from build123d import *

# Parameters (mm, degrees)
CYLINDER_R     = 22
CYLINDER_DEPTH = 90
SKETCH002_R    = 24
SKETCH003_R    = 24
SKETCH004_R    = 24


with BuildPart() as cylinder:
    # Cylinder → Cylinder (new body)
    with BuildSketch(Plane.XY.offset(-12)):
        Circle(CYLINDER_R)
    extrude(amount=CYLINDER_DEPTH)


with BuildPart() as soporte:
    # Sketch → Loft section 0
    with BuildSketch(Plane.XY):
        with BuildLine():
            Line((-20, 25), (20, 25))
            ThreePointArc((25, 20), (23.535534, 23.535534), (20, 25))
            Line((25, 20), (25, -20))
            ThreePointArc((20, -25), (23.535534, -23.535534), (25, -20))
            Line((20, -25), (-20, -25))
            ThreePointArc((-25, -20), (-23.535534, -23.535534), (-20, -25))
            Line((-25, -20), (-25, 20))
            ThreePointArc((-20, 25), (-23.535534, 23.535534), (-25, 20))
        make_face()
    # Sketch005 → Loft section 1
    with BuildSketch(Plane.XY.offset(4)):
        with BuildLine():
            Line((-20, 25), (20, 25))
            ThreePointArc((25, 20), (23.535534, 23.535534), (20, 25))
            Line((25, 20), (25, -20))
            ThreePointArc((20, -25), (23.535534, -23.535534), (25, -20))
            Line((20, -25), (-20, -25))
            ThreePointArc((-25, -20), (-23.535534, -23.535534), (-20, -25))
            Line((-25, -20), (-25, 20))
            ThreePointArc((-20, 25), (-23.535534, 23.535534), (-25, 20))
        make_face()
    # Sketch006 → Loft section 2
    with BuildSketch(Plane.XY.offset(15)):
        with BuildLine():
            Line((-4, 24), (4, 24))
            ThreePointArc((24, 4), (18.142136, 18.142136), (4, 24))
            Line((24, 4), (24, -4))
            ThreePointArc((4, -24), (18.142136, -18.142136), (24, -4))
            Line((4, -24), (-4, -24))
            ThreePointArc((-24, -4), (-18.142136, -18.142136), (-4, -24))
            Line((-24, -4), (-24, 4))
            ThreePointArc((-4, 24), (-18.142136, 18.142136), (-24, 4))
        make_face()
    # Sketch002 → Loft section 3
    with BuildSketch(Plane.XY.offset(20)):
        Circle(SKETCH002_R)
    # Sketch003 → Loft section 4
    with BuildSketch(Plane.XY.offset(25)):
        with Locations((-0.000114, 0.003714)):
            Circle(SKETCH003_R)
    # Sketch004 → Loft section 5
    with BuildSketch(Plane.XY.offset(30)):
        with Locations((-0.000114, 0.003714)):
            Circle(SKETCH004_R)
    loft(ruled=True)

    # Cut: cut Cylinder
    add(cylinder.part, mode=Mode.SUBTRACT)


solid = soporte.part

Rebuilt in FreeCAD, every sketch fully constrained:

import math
import FreeCAD as App
import Part
import Sketcher
from FreeCAD import Vector

doc = App.newDocument("Part")
body = doc.addObject("PartDesign::Body", "Body")

# Sketch on XY plane
sketch1 = body.newObject("Sketcher::SketchObject", "Sketch")
sketch1.AttachmentSupport = (doc.getObject("XY_Plane"), [""])
sketch1.MapMode = "FlatFace"
sketch1.AttachmentOffset = App.Placement(Vector(0, 0, -12), App.Rotation())
sketch1.addGeometry(Part.Circle(Vector(0, 0, 0), Vector(0, 0, 1), 22), False)
sketch1.addConstraint([
    Sketcher.Constraint("Coincident", 0, 3, -1, 1),
    Sketcher.Constraint("Diameter", 0, 44.0),
])
pad1 = body.newObject("PartDesign::Pad", "Pad")
pad1.Profile = sketch1
pad1.Length = 90
body2 = doc.addObject("PartDesign::Body", "Body001")

# Sketch on XY plane
sketch2 = body2.newObject("Sketcher::SketchObject", "Sketch001")
sketch2.AttachmentSupport = (doc.getObject("XY_Plane001"), [""])
sketch2.MapMode = "FlatFace"
sketch2.addGeometry([
    Part.LineSegment(Vector(20, 25, 0), Vector(-20, 25, 0)),  # 0
    Part.ArcOfCircle(Part.Circle(Vector(-20, 20, 0), Vector(0, 0, 1), 5), math.radians(90), math.radians(180)),  # 1
    Part.LineSegment(Vector(-25, 20, 0), Vector(-25, -20, 0)),  # 2
    Part.ArcOfCircle(Part.Circle(Vector(-20, -20, 0), Vector(0, 0, 1), 5), math.radians(180), math.radians(270)),  # 3
    Part.LineSegment(Vector(-20, -25, 0), Vector(20, -25, 0)),  # 4
    Part.ArcOfCircle(Part.Circle(Vector(20, -20, 0), Vector(0, 0, 1), 5), math.radians(-90), math.radians(0)),  # 5
    Part.LineSegment(Vector(25, -20, 0), Vector(25, 20, 0)),  # 6
    Part.ArcOfCircle(Part.Circle(Vector(20, 20, 0), Vector(0, 0, 1), 5), math.radians(0), math.radians(90)),  # 7
], False)
sketch2.addConstraint([
    Sketcher.Constraint("Tangent", 0, 2, 1, 1),
    Sketcher.Constraint("Tangent", 1, 2, 2, 1),
    Sketcher.Constraint("Tangent", 2, 2, 3, 1),
    Sketcher.Constraint("Tangent", 3, 2, 4, 1),
    Sketcher.Constraint("Tangent", 4, 2, 5, 1),
    Sketcher.Constraint("Tangent", 5, 2, 6, 1),
    Sketcher.Constraint("Tangent", 6, 2, 7, 1),
    Sketcher.Constraint("Tangent", 7, 2, 0, 1),
    Sketcher.Constraint("Horizontal", 0),
    Sketcher.Constraint("Vertical", 2),
    Sketcher.Constraint("Horizontal", 4),
    Sketcher.Constraint("Vertical", 6),
    Sketcher.Constraint("Equal", 1, 3),
    Sketcher.Constraint("Equal", 3, 5),
    Sketcher.Constraint("Equal", 5, 7),
    Sketcher.Constraint("Symmetric", 1, 3, 5, 3, -1, 1),
    Sketcher.Constraint("Equal", 4, 2),
    Sketcher.Constraint("Radius", 1, 5.0),
    Sketcher.Constraint("DistanceX", 0, 2, 0, 1, 40.0),
])

# Sketch on XY plane
sketch3 = body2.newObject("Sketcher::SketchObject", "Sketch002")
sketch3.AttachmentSupport = (doc.getObject("XY_Plane001"), [""])
sketch3.MapMode = "FlatFace"
sketch3.AttachmentOffset = App.Placement(Vector(0, 0, 4), App.Rotation())
sketch3.addGeometry([
    Part.LineSegment(Vector(20, 25, 0), Vector(-20, 25, 0)),  # 0
    Part.ArcOfCircle(Part.Circle(Vector(-20, 20, 0), Vector(0, 0, 1), 5), math.radians(90), math.radians(180)),  # 1
    Part.LineSegment(Vector(-25, 20, 0), Vector(-25, -20, 0)),  # 2
    Part.ArcOfCircle(Part.Circle(Vector(-20, -20, 0), Vector(0, 0, 1), 5), math.radians(180), math.radians(270)),  # 3
    Part.LineSegment(Vector(-20, -25, 0), Vector(20, -25, 0)),  # 4
    Part.ArcOfCircle(Part.Circle(Vector(20, -20, 0), Vector(0, 0, 1), 5), math.radians(-90), math.radians(0)),  # 5
    Part.LineSegment(Vector(25, -20, 0), Vector(25, 20, 0)),  # 6
    Part.ArcOfCircle(Part.Circle(Vector(20, 20, 0), Vector(0, 0, 1), 5), math.radians(0), math.radians(90)),  # 7
], False)
sketch3.addConstraint([
    Sketcher.Constraint("Tangent", 0, 2, 1, 1),
    Sketcher.Constraint("Tangent", 1, 2, 2, 1),
    Sketcher.Constraint("Tangent", 2, 2, 3, 1),
    Sketcher.Constraint("Tangent", 3, 2, 4, 1),
    Sketcher.Constraint("Tangent", 4, 2, 5, 1),
    Sketcher.Constraint("Tangent", 5, 2, 6, 1),
    Sketcher.Constraint("Tangent", 6, 2, 7, 1),
    Sketcher.Constraint("Tangent", 7, 2, 0, 1),
    Sketcher.Constraint("Horizontal", 0),
    Sketcher.Constraint("Vertical", 2),
    Sketcher.Constraint("Horizontal", 4),
    Sketcher.Constraint("Vertical", 6),
    Sketcher.Constraint("Equal", 1, 3),
    Sketcher.Constraint("Equal", 3, 5),
    Sketcher.Constraint("Equal", 5, 7),
    Sketcher.Constraint("Symmetric", 1, 3, 5, 3, -1, 1),
    Sketcher.Constraint("Equal", 4, 2),
    Sketcher.Constraint("Radius", 1, 5.0),
    Sketcher.Constraint("DistanceX", 0, 2, 0, 1, 40.0),
])

# Sketch on XY plane
sketch4 = body2.newObject("Sketcher::SketchObject", "Sketch003")
sketch4.AttachmentSupport = (doc.getObject("XY_Plane001"), [""])
sketch4.MapMode = "FlatFace"
sketch4.AttachmentOffset = App.Placement(Vector(0, 0, 15), App.Rotation())
sketch4.addGeometry([
    Part.LineSegment(Vector(4, 24, 0), Vector(-4, 24, 0)),  # 0
    Part.ArcOfCircle(Part.Circle(Vector(-4, 4, 0), Vector(0, 0, 1), 20), math.radians(90), math.radians(180)),  # 1
    Part.LineSegment(Vector(-24, 4, 0), Vector(-24, -4, 0)),  # 2
    Part.ArcOfCircle(Part.Circle(Vector(-4, -4, 0), Vector(0, 0, 1), 20), math.radians(180), math.radians(270)),  # 3
    Part.LineSegment(Vector(-4, -24, 0), Vector(4, -24, 0)),  # 4
    Part.ArcOfCircle(Part.Circle(Vector(4, -4, 0), Vector(0, 0, 1), 20), math.radians(-90), math.radians(0)),  # 5
    Part.LineSegment(Vector(24, -4, 0), Vector(24, 4, 0)),  # 6
    Part.ArcOfCircle(Part.Circle(Vector(4, 4, 0), Vector(0, 0, 1), 20), math.radians(0), math.radians(90)),  # 7
], False)
sketch4.addConstraint([
    Sketcher.Constraint("Tangent", 0, 2, 1, 1),
    Sketcher.Constraint("Tangent", 1, 2, 2, 1),
    Sketcher.Constraint("Tangent", 2, 2, 3, 1),
    Sketcher.Constraint("Tangent", 3, 2, 4, 1),
    Sketcher.Constraint("Tangent", 4, 2, 5, 1),
    Sketcher.Constraint("Tangent", 5, 2, 6, 1),
    Sketcher.Constraint("Tangent", 6, 2, 7, 1),
    Sketcher.Constraint("Tangent", 7, 2, 0, 1),
    Sketcher.Constraint("Horizontal", 0),
    Sketcher.Constraint("Vertical", 2),
    Sketcher.Constraint("Horizontal", 4),
    Sketcher.Constraint("Vertical", 6),
    Sketcher.Constraint("Equal", 1, 3),
    Sketcher.Constraint("Equal", 3, 5),
    Sketcher.Constraint("Equal", 5, 7),
    Sketcher.Constraint("Symmetric", 1, 3, 5, 3, -1, 1),
    Sketcher.Constraint("Equal", 4, 2),
    Sketcher.Constraint("Radius", 1, 19.999999),
    Sketcher.Constraint("DistanceX", 0, 2, 0, 1, 8.0),
])

# Sketch on XY plane
sketch5 = body2.newObject("Sketcher::SketchObject", "Sketch004")
sketch5.AttachmentSupport = (doc.getObject("XY_Plane001"), [""])
sketch5.MapMode = "FlatFace"
sketch5.AttachmentOffset = App.Placement(Vector(0, 0, 20), App.Rotation())
sketch5.addGeometry(Part.Circle(Vector(0, 0, 0), Vector(0, 0, 1), 24), False)
sketch5.addConstraint([
    Sketcher.Constraint("Coincident", 0, 3, -1, 1),
    Sketcher.Constraint("Diameter", 0, 48.0),
])

# Sketch on XY plane
sketch6 = body2.newObject("Sketcher::SketchObject", "Sketch005")
sketch6.AttachmentSupport = (doc.getObject("XY_Plane001"), [""])
sketch6.MapMode = "FlatFace"
sketch6.AttachmentOffset = App.Placement(Vector(0, 0, 25), App.Rotation())
sketch6.addGeometry(Part.Circle(Vector(0, 0, 0), Vector(0, 0, 1), 24), False)
sketch6.addConstraint([
    Sketcher.Constraint("Diameter", 0, 48.0),
    Sketcher.Constraint("DistanceX", 0, 3, -1, 1, 0.000114),
    Sketcher.Constraint("DistanceY", -1, 1, 0, 3, 0.003714),
])

# Sketch on XY plane
sketch7 = body2.newObject("Sketcher::SketchObject", "Sketch006")
sketch7.AttachmentSupport = (doc.getObject("XY_Plane001"), [""])
sketch7.MapMode = "FlatFace"
sketch7.AttachmentOffset = App.Placement(Vector(0, 0, 30), App.Rotation())
sketch7.addGeometry(Part.Circle(Vector(0, 0, 0), Vector(0, 0, 1), 24), False)
sketch7.addConstraint([
    Sketcher.Constraint("Diameter", 0, 48.0),
    Sketcher.Constraint("DistanceX", 0, 3, -1, 1, 0.000114),
    Sketcher.Constraint("DistanceY", -1, 1, 0, 3, 0.003714),
])

additiveloft = body2.newObject("PartDesign::AdditiveLoft", "AdditiveLoft")
additiveloft.Profile = sketch2
additiveloft.Sections = [sketch3, sketch4, sketch5, sketch6, sketch7]
additiveloft.Ruled = True
doc.recompute()

boolean = body2.newObject("PartDesign::Boolean", "Boolean")
boolean.Type = "Cut"
boolean.addObjects([body])

doc.recompute()
